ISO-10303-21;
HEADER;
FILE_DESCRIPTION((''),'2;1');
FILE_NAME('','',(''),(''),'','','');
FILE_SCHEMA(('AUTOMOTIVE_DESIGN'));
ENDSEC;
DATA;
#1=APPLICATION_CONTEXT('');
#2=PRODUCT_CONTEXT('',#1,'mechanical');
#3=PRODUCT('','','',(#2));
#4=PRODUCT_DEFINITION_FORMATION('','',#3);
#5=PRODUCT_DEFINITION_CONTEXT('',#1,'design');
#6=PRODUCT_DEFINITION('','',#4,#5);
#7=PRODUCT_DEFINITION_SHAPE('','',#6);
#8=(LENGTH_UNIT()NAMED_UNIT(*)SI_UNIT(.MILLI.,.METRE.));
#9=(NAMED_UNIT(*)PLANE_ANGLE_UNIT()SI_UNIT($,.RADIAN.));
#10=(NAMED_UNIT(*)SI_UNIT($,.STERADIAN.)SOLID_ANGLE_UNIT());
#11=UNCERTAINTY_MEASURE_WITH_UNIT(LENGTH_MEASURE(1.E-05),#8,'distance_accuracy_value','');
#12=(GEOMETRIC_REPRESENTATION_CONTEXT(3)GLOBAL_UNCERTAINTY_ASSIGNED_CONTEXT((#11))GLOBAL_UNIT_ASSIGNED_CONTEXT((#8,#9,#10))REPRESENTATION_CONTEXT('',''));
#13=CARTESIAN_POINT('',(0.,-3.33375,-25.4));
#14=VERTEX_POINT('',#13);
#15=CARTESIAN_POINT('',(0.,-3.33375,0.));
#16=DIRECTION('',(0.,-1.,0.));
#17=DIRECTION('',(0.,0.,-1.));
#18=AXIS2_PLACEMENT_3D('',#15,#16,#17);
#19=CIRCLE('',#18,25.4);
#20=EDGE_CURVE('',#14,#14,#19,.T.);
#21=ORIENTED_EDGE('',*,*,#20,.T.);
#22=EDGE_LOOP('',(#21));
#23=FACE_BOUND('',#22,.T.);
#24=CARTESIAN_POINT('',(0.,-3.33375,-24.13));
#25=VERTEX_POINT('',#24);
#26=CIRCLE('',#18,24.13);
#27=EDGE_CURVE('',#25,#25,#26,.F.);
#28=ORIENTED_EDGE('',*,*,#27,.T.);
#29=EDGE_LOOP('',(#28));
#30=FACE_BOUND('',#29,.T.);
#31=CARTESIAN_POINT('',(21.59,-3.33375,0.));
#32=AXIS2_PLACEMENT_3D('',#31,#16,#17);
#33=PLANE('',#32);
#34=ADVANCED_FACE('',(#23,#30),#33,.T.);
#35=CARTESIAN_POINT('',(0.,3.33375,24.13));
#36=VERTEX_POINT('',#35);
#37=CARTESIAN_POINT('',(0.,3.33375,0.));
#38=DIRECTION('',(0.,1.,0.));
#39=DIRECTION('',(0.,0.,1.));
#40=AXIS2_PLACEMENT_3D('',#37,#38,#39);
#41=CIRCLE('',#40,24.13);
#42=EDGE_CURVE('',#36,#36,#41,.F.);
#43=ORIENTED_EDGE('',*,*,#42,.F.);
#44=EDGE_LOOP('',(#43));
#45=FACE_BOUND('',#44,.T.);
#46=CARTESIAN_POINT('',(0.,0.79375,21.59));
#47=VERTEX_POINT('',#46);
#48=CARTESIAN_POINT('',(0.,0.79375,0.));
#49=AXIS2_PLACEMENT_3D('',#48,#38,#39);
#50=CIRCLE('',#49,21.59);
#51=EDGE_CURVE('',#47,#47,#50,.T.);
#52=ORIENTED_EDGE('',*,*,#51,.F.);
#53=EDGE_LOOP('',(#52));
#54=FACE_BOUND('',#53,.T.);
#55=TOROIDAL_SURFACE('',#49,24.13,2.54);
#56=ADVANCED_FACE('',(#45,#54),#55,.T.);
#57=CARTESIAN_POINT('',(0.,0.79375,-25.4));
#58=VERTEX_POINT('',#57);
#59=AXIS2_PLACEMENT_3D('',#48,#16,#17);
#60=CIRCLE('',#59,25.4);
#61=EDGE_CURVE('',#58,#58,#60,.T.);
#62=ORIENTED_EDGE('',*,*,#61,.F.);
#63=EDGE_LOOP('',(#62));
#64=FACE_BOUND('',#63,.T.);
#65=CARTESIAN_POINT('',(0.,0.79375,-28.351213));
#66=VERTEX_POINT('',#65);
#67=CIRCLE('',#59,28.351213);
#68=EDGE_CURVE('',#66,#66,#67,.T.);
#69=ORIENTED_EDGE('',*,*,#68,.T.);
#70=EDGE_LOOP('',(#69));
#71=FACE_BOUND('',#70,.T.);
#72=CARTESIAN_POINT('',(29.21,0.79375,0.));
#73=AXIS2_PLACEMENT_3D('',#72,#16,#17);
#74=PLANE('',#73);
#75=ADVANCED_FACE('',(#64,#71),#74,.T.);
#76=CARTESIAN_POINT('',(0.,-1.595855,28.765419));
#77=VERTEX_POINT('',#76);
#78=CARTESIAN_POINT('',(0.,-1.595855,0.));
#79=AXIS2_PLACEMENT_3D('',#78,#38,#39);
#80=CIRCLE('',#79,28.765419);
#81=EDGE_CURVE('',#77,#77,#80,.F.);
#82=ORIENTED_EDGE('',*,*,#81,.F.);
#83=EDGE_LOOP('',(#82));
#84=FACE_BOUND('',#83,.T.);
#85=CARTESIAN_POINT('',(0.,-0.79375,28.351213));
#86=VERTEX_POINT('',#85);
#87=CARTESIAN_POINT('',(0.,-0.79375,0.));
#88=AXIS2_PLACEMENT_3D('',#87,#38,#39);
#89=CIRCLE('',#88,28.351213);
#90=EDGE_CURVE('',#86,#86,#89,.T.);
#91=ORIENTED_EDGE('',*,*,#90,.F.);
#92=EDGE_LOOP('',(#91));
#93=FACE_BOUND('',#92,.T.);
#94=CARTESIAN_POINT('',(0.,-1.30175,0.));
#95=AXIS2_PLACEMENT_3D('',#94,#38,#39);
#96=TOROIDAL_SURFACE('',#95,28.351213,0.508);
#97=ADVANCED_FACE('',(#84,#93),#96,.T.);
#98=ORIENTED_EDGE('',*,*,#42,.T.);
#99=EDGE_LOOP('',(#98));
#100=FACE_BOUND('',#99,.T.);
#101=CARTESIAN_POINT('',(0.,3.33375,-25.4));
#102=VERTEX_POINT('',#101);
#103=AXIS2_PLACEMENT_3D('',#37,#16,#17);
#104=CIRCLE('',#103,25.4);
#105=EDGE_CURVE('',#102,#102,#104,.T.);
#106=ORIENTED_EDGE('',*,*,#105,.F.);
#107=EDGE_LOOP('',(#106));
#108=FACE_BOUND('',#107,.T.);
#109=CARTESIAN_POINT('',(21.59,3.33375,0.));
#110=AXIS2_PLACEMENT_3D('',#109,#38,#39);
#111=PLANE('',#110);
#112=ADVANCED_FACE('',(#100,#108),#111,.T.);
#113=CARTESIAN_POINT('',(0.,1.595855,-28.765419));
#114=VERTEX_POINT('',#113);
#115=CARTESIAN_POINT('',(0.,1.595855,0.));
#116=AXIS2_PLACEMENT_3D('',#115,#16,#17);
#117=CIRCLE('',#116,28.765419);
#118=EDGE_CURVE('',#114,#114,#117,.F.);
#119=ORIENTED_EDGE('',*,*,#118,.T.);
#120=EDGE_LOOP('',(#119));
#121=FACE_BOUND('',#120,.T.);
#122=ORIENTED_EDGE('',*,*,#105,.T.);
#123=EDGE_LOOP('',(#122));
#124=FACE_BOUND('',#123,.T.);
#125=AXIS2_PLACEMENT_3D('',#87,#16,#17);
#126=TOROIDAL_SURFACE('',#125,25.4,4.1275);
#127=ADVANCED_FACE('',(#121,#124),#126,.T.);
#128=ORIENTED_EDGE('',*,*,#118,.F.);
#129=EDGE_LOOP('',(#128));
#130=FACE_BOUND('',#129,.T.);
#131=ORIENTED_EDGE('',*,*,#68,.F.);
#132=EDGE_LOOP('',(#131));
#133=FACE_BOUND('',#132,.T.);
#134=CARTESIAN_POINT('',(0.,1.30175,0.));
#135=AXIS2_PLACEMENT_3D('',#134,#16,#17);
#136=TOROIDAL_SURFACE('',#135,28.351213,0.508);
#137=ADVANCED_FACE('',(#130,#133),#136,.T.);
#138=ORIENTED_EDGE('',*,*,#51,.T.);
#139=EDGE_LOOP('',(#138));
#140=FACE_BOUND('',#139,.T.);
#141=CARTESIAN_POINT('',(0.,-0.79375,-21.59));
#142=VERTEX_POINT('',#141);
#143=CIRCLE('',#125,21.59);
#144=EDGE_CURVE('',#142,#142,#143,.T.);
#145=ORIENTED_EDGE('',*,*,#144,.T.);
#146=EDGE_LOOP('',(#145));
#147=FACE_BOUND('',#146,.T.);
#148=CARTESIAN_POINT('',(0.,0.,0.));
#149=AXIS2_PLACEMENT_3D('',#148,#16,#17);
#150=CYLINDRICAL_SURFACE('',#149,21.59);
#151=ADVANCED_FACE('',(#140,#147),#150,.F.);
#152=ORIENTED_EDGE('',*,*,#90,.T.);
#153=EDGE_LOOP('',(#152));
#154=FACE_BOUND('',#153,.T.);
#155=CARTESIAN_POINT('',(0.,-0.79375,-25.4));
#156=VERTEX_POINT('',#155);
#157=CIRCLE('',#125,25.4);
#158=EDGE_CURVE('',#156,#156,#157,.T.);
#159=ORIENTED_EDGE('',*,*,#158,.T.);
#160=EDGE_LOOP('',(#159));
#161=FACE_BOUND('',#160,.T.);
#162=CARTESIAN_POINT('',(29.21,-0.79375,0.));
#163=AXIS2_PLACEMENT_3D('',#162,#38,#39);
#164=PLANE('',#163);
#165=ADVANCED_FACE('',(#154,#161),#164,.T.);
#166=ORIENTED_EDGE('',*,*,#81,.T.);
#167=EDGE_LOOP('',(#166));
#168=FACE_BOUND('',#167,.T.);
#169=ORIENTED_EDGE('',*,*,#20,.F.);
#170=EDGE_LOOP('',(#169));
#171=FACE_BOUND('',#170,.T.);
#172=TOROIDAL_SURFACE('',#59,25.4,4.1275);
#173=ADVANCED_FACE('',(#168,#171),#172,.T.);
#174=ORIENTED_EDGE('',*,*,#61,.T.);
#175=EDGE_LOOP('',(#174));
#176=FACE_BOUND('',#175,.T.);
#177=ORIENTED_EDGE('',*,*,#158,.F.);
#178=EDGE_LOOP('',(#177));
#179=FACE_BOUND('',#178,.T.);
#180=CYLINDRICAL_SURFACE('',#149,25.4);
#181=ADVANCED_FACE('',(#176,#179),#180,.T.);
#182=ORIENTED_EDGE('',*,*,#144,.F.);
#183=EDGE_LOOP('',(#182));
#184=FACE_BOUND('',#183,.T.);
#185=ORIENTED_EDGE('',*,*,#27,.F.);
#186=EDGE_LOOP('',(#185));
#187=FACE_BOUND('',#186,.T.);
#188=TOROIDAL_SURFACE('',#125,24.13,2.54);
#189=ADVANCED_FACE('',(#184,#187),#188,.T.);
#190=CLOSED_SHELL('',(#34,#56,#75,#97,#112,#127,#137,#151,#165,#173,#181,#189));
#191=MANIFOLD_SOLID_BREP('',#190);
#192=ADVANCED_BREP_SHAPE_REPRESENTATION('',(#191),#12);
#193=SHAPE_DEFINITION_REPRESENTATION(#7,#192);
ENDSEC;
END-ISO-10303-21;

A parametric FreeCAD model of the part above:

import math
import FreeCAD as App
import Part
import Sketcher
from FreeCAD import Vector
Q = App.Units.Quantity


def edges_at(feature, points):
    """Names of the edges that pass closest to the given points."""
    edges = feature.Shape.Edges
    near = lambda p: min(range(len(edges)), key=lambda i: edges[i].distToShape(Part.Vertex(*p))[0])
    return sorted({f"Edge{near(p) + 1}" for p in points})

doc = App.newDocument("Part")
body = doc.addObject("PartDesign::Body", "Body")

# Sketch on XY plane
sketch1 = doc.addObject("Sketcher::SketchObject", "Sketch")
body.addObject(sketch1)
sketch1.AttachmentSupport = (doc.XY_Plane, [""])
sketch1.MapMode = "FlatFace"
sketch1.addGeometry(Part.LineSegment(Vector(21.6, 3.3, 0), Vector(21.6, -3.3, 0)), False)
sketch1.addGeometry(Part.LineSegment(Vector(21.6, -3.3, 0), Vector(25.4, -3.3, 0)), False)
sketch1.addGeometry(Part.ArcOfCircle(Part.Circle(Vector(25.4, 0.8, 0), Vector(0, 0, 1), 4.1), math.radians(-90), math.radians(-23)), False)
sketch1.addGeometry(Part.LineSegment(Vector(29.2, -0.8, 0), Vector(25.4, -0.8, 0)), False)
sketch1.addGeometry(Part.LineSegment(Vector(25.4, -0.8, 0), Vector(25.4, 0.8, 0)), False)
sketch1.addGeometry(Part.LineSegment(Vector(25.4, 0.8, 0), Vector(29.2, 0.8, 0)), False)
sketch1.addGeometry(Part.ArcOfCircle(Part.Circle(Vector(25.4, -0.8, 0), Vector(0, 0, 1), 4.1), math.radians(23), math.radians(90)), False)
sketch1.addGeometry(Part.LineSegment(Vector(25.4, 3.3, 0), Vector(21.6, 3.3, 0)), False)
sketch1.addConstraint(Sketcher.Constraint("Coincident", 0, 2, 1, 1))
sketch1.addConstraint(Sketcher.Constraint("Tangent", 1, 2, 2, 1))
sketch1.addConstraint(Sketcher.Constraint("Coincident", 2, 2, 3, 1))
sketch1.addConstraint(Sketcher.Constraint("Coincident", 3, 2, 4, 1))
sketch1.addConstraint(Sketcher.Constraint("Coincident", 4, 2, 5, 1))
sketch1.addConstraint(Sketcher.Constraint("Coincident", 5, 2, 6, 1))
sketch1.addConstraint(Sketcher.Constraint("Tangent", 6, 2, 7, 1))
sketch1.addConstraint(Sketcher.Constraint("Coincident", 7, 2, 0, 1))
sketch1.addConstraint(Sketcher.Constraint("Vertical", 0))
sketch1.addConstraint(Sketcher.Constraint("Horizontal", 1))
sketch1.addConstraint(Sketcher.Constraint("Horizontal", 3))
sketch1.addConstraint(Sketcher.Constraint("Vertical", 4))
sketch1.addConstraint(Sketcher.Constraint("Horizontal", 5))
sketch1.addConstraint(Sketcher.Constraint("Horizontal", 7))
sketch1.addConstraint(Sketcher.Constraint("Coincident", 3, 2, 6, 3))
sketch1.addConstraint(Sketcher.Constraint("Coincident", 4, 2, 2, 3))
sketch1.addConstraint(Sketcher.Constraint("Equal", 2, 6))
sketch1.addConstraint(Sketcher.Constraint("Equal", 1, 3))
sketch1.addConstraint(Sketcher.Constraint("DistanceX", -1, 1, 2, 3, Q("1 in")))
sketch1.addConstraint(Sketcher.Constraint("DistanceX", 1, 1, 1, 2, Q("0.15 in")))
sketch1.addConstraint(Sketcher.Constraint("Radius", 2, Q("0.1625 in")))
sketch1.addConstraint(Sketcher.Constraint("DistanceY", -1, 1, 2, 3, Q("0.03125 in")))
revolution = doc.addObject("PartDesign::Revolution", "Revolution")
body.addObject(revolution)
revolution.Profile = sketch1
revolution.ReferenceAxis = (sketch1, ["V_Axis"])
revolution.Angle = 360
doc.recompute()

fillet = doc.addObject("PartDesign::Fillet", "Fillet")
body.addObject(fillet)
fillet.Base = (revolution, edges_at(revolution, [(0, -3.334, 21.59), (0, 3.334, 21.59)]))
fillet.Radius = Q("0.1 in")
doc.recompute()

fillet2 = doc.addObject("PartDesign::Fillet", "Fillet001")
body.addObject(fillet2)
fillet2.Base = (fillet, edges_at(fillet, [(0, 0.794, 29.21), (0, -0.794, 29.21)]))
fillet2.Radius = Q("0.02 in")

doc.recompute()
